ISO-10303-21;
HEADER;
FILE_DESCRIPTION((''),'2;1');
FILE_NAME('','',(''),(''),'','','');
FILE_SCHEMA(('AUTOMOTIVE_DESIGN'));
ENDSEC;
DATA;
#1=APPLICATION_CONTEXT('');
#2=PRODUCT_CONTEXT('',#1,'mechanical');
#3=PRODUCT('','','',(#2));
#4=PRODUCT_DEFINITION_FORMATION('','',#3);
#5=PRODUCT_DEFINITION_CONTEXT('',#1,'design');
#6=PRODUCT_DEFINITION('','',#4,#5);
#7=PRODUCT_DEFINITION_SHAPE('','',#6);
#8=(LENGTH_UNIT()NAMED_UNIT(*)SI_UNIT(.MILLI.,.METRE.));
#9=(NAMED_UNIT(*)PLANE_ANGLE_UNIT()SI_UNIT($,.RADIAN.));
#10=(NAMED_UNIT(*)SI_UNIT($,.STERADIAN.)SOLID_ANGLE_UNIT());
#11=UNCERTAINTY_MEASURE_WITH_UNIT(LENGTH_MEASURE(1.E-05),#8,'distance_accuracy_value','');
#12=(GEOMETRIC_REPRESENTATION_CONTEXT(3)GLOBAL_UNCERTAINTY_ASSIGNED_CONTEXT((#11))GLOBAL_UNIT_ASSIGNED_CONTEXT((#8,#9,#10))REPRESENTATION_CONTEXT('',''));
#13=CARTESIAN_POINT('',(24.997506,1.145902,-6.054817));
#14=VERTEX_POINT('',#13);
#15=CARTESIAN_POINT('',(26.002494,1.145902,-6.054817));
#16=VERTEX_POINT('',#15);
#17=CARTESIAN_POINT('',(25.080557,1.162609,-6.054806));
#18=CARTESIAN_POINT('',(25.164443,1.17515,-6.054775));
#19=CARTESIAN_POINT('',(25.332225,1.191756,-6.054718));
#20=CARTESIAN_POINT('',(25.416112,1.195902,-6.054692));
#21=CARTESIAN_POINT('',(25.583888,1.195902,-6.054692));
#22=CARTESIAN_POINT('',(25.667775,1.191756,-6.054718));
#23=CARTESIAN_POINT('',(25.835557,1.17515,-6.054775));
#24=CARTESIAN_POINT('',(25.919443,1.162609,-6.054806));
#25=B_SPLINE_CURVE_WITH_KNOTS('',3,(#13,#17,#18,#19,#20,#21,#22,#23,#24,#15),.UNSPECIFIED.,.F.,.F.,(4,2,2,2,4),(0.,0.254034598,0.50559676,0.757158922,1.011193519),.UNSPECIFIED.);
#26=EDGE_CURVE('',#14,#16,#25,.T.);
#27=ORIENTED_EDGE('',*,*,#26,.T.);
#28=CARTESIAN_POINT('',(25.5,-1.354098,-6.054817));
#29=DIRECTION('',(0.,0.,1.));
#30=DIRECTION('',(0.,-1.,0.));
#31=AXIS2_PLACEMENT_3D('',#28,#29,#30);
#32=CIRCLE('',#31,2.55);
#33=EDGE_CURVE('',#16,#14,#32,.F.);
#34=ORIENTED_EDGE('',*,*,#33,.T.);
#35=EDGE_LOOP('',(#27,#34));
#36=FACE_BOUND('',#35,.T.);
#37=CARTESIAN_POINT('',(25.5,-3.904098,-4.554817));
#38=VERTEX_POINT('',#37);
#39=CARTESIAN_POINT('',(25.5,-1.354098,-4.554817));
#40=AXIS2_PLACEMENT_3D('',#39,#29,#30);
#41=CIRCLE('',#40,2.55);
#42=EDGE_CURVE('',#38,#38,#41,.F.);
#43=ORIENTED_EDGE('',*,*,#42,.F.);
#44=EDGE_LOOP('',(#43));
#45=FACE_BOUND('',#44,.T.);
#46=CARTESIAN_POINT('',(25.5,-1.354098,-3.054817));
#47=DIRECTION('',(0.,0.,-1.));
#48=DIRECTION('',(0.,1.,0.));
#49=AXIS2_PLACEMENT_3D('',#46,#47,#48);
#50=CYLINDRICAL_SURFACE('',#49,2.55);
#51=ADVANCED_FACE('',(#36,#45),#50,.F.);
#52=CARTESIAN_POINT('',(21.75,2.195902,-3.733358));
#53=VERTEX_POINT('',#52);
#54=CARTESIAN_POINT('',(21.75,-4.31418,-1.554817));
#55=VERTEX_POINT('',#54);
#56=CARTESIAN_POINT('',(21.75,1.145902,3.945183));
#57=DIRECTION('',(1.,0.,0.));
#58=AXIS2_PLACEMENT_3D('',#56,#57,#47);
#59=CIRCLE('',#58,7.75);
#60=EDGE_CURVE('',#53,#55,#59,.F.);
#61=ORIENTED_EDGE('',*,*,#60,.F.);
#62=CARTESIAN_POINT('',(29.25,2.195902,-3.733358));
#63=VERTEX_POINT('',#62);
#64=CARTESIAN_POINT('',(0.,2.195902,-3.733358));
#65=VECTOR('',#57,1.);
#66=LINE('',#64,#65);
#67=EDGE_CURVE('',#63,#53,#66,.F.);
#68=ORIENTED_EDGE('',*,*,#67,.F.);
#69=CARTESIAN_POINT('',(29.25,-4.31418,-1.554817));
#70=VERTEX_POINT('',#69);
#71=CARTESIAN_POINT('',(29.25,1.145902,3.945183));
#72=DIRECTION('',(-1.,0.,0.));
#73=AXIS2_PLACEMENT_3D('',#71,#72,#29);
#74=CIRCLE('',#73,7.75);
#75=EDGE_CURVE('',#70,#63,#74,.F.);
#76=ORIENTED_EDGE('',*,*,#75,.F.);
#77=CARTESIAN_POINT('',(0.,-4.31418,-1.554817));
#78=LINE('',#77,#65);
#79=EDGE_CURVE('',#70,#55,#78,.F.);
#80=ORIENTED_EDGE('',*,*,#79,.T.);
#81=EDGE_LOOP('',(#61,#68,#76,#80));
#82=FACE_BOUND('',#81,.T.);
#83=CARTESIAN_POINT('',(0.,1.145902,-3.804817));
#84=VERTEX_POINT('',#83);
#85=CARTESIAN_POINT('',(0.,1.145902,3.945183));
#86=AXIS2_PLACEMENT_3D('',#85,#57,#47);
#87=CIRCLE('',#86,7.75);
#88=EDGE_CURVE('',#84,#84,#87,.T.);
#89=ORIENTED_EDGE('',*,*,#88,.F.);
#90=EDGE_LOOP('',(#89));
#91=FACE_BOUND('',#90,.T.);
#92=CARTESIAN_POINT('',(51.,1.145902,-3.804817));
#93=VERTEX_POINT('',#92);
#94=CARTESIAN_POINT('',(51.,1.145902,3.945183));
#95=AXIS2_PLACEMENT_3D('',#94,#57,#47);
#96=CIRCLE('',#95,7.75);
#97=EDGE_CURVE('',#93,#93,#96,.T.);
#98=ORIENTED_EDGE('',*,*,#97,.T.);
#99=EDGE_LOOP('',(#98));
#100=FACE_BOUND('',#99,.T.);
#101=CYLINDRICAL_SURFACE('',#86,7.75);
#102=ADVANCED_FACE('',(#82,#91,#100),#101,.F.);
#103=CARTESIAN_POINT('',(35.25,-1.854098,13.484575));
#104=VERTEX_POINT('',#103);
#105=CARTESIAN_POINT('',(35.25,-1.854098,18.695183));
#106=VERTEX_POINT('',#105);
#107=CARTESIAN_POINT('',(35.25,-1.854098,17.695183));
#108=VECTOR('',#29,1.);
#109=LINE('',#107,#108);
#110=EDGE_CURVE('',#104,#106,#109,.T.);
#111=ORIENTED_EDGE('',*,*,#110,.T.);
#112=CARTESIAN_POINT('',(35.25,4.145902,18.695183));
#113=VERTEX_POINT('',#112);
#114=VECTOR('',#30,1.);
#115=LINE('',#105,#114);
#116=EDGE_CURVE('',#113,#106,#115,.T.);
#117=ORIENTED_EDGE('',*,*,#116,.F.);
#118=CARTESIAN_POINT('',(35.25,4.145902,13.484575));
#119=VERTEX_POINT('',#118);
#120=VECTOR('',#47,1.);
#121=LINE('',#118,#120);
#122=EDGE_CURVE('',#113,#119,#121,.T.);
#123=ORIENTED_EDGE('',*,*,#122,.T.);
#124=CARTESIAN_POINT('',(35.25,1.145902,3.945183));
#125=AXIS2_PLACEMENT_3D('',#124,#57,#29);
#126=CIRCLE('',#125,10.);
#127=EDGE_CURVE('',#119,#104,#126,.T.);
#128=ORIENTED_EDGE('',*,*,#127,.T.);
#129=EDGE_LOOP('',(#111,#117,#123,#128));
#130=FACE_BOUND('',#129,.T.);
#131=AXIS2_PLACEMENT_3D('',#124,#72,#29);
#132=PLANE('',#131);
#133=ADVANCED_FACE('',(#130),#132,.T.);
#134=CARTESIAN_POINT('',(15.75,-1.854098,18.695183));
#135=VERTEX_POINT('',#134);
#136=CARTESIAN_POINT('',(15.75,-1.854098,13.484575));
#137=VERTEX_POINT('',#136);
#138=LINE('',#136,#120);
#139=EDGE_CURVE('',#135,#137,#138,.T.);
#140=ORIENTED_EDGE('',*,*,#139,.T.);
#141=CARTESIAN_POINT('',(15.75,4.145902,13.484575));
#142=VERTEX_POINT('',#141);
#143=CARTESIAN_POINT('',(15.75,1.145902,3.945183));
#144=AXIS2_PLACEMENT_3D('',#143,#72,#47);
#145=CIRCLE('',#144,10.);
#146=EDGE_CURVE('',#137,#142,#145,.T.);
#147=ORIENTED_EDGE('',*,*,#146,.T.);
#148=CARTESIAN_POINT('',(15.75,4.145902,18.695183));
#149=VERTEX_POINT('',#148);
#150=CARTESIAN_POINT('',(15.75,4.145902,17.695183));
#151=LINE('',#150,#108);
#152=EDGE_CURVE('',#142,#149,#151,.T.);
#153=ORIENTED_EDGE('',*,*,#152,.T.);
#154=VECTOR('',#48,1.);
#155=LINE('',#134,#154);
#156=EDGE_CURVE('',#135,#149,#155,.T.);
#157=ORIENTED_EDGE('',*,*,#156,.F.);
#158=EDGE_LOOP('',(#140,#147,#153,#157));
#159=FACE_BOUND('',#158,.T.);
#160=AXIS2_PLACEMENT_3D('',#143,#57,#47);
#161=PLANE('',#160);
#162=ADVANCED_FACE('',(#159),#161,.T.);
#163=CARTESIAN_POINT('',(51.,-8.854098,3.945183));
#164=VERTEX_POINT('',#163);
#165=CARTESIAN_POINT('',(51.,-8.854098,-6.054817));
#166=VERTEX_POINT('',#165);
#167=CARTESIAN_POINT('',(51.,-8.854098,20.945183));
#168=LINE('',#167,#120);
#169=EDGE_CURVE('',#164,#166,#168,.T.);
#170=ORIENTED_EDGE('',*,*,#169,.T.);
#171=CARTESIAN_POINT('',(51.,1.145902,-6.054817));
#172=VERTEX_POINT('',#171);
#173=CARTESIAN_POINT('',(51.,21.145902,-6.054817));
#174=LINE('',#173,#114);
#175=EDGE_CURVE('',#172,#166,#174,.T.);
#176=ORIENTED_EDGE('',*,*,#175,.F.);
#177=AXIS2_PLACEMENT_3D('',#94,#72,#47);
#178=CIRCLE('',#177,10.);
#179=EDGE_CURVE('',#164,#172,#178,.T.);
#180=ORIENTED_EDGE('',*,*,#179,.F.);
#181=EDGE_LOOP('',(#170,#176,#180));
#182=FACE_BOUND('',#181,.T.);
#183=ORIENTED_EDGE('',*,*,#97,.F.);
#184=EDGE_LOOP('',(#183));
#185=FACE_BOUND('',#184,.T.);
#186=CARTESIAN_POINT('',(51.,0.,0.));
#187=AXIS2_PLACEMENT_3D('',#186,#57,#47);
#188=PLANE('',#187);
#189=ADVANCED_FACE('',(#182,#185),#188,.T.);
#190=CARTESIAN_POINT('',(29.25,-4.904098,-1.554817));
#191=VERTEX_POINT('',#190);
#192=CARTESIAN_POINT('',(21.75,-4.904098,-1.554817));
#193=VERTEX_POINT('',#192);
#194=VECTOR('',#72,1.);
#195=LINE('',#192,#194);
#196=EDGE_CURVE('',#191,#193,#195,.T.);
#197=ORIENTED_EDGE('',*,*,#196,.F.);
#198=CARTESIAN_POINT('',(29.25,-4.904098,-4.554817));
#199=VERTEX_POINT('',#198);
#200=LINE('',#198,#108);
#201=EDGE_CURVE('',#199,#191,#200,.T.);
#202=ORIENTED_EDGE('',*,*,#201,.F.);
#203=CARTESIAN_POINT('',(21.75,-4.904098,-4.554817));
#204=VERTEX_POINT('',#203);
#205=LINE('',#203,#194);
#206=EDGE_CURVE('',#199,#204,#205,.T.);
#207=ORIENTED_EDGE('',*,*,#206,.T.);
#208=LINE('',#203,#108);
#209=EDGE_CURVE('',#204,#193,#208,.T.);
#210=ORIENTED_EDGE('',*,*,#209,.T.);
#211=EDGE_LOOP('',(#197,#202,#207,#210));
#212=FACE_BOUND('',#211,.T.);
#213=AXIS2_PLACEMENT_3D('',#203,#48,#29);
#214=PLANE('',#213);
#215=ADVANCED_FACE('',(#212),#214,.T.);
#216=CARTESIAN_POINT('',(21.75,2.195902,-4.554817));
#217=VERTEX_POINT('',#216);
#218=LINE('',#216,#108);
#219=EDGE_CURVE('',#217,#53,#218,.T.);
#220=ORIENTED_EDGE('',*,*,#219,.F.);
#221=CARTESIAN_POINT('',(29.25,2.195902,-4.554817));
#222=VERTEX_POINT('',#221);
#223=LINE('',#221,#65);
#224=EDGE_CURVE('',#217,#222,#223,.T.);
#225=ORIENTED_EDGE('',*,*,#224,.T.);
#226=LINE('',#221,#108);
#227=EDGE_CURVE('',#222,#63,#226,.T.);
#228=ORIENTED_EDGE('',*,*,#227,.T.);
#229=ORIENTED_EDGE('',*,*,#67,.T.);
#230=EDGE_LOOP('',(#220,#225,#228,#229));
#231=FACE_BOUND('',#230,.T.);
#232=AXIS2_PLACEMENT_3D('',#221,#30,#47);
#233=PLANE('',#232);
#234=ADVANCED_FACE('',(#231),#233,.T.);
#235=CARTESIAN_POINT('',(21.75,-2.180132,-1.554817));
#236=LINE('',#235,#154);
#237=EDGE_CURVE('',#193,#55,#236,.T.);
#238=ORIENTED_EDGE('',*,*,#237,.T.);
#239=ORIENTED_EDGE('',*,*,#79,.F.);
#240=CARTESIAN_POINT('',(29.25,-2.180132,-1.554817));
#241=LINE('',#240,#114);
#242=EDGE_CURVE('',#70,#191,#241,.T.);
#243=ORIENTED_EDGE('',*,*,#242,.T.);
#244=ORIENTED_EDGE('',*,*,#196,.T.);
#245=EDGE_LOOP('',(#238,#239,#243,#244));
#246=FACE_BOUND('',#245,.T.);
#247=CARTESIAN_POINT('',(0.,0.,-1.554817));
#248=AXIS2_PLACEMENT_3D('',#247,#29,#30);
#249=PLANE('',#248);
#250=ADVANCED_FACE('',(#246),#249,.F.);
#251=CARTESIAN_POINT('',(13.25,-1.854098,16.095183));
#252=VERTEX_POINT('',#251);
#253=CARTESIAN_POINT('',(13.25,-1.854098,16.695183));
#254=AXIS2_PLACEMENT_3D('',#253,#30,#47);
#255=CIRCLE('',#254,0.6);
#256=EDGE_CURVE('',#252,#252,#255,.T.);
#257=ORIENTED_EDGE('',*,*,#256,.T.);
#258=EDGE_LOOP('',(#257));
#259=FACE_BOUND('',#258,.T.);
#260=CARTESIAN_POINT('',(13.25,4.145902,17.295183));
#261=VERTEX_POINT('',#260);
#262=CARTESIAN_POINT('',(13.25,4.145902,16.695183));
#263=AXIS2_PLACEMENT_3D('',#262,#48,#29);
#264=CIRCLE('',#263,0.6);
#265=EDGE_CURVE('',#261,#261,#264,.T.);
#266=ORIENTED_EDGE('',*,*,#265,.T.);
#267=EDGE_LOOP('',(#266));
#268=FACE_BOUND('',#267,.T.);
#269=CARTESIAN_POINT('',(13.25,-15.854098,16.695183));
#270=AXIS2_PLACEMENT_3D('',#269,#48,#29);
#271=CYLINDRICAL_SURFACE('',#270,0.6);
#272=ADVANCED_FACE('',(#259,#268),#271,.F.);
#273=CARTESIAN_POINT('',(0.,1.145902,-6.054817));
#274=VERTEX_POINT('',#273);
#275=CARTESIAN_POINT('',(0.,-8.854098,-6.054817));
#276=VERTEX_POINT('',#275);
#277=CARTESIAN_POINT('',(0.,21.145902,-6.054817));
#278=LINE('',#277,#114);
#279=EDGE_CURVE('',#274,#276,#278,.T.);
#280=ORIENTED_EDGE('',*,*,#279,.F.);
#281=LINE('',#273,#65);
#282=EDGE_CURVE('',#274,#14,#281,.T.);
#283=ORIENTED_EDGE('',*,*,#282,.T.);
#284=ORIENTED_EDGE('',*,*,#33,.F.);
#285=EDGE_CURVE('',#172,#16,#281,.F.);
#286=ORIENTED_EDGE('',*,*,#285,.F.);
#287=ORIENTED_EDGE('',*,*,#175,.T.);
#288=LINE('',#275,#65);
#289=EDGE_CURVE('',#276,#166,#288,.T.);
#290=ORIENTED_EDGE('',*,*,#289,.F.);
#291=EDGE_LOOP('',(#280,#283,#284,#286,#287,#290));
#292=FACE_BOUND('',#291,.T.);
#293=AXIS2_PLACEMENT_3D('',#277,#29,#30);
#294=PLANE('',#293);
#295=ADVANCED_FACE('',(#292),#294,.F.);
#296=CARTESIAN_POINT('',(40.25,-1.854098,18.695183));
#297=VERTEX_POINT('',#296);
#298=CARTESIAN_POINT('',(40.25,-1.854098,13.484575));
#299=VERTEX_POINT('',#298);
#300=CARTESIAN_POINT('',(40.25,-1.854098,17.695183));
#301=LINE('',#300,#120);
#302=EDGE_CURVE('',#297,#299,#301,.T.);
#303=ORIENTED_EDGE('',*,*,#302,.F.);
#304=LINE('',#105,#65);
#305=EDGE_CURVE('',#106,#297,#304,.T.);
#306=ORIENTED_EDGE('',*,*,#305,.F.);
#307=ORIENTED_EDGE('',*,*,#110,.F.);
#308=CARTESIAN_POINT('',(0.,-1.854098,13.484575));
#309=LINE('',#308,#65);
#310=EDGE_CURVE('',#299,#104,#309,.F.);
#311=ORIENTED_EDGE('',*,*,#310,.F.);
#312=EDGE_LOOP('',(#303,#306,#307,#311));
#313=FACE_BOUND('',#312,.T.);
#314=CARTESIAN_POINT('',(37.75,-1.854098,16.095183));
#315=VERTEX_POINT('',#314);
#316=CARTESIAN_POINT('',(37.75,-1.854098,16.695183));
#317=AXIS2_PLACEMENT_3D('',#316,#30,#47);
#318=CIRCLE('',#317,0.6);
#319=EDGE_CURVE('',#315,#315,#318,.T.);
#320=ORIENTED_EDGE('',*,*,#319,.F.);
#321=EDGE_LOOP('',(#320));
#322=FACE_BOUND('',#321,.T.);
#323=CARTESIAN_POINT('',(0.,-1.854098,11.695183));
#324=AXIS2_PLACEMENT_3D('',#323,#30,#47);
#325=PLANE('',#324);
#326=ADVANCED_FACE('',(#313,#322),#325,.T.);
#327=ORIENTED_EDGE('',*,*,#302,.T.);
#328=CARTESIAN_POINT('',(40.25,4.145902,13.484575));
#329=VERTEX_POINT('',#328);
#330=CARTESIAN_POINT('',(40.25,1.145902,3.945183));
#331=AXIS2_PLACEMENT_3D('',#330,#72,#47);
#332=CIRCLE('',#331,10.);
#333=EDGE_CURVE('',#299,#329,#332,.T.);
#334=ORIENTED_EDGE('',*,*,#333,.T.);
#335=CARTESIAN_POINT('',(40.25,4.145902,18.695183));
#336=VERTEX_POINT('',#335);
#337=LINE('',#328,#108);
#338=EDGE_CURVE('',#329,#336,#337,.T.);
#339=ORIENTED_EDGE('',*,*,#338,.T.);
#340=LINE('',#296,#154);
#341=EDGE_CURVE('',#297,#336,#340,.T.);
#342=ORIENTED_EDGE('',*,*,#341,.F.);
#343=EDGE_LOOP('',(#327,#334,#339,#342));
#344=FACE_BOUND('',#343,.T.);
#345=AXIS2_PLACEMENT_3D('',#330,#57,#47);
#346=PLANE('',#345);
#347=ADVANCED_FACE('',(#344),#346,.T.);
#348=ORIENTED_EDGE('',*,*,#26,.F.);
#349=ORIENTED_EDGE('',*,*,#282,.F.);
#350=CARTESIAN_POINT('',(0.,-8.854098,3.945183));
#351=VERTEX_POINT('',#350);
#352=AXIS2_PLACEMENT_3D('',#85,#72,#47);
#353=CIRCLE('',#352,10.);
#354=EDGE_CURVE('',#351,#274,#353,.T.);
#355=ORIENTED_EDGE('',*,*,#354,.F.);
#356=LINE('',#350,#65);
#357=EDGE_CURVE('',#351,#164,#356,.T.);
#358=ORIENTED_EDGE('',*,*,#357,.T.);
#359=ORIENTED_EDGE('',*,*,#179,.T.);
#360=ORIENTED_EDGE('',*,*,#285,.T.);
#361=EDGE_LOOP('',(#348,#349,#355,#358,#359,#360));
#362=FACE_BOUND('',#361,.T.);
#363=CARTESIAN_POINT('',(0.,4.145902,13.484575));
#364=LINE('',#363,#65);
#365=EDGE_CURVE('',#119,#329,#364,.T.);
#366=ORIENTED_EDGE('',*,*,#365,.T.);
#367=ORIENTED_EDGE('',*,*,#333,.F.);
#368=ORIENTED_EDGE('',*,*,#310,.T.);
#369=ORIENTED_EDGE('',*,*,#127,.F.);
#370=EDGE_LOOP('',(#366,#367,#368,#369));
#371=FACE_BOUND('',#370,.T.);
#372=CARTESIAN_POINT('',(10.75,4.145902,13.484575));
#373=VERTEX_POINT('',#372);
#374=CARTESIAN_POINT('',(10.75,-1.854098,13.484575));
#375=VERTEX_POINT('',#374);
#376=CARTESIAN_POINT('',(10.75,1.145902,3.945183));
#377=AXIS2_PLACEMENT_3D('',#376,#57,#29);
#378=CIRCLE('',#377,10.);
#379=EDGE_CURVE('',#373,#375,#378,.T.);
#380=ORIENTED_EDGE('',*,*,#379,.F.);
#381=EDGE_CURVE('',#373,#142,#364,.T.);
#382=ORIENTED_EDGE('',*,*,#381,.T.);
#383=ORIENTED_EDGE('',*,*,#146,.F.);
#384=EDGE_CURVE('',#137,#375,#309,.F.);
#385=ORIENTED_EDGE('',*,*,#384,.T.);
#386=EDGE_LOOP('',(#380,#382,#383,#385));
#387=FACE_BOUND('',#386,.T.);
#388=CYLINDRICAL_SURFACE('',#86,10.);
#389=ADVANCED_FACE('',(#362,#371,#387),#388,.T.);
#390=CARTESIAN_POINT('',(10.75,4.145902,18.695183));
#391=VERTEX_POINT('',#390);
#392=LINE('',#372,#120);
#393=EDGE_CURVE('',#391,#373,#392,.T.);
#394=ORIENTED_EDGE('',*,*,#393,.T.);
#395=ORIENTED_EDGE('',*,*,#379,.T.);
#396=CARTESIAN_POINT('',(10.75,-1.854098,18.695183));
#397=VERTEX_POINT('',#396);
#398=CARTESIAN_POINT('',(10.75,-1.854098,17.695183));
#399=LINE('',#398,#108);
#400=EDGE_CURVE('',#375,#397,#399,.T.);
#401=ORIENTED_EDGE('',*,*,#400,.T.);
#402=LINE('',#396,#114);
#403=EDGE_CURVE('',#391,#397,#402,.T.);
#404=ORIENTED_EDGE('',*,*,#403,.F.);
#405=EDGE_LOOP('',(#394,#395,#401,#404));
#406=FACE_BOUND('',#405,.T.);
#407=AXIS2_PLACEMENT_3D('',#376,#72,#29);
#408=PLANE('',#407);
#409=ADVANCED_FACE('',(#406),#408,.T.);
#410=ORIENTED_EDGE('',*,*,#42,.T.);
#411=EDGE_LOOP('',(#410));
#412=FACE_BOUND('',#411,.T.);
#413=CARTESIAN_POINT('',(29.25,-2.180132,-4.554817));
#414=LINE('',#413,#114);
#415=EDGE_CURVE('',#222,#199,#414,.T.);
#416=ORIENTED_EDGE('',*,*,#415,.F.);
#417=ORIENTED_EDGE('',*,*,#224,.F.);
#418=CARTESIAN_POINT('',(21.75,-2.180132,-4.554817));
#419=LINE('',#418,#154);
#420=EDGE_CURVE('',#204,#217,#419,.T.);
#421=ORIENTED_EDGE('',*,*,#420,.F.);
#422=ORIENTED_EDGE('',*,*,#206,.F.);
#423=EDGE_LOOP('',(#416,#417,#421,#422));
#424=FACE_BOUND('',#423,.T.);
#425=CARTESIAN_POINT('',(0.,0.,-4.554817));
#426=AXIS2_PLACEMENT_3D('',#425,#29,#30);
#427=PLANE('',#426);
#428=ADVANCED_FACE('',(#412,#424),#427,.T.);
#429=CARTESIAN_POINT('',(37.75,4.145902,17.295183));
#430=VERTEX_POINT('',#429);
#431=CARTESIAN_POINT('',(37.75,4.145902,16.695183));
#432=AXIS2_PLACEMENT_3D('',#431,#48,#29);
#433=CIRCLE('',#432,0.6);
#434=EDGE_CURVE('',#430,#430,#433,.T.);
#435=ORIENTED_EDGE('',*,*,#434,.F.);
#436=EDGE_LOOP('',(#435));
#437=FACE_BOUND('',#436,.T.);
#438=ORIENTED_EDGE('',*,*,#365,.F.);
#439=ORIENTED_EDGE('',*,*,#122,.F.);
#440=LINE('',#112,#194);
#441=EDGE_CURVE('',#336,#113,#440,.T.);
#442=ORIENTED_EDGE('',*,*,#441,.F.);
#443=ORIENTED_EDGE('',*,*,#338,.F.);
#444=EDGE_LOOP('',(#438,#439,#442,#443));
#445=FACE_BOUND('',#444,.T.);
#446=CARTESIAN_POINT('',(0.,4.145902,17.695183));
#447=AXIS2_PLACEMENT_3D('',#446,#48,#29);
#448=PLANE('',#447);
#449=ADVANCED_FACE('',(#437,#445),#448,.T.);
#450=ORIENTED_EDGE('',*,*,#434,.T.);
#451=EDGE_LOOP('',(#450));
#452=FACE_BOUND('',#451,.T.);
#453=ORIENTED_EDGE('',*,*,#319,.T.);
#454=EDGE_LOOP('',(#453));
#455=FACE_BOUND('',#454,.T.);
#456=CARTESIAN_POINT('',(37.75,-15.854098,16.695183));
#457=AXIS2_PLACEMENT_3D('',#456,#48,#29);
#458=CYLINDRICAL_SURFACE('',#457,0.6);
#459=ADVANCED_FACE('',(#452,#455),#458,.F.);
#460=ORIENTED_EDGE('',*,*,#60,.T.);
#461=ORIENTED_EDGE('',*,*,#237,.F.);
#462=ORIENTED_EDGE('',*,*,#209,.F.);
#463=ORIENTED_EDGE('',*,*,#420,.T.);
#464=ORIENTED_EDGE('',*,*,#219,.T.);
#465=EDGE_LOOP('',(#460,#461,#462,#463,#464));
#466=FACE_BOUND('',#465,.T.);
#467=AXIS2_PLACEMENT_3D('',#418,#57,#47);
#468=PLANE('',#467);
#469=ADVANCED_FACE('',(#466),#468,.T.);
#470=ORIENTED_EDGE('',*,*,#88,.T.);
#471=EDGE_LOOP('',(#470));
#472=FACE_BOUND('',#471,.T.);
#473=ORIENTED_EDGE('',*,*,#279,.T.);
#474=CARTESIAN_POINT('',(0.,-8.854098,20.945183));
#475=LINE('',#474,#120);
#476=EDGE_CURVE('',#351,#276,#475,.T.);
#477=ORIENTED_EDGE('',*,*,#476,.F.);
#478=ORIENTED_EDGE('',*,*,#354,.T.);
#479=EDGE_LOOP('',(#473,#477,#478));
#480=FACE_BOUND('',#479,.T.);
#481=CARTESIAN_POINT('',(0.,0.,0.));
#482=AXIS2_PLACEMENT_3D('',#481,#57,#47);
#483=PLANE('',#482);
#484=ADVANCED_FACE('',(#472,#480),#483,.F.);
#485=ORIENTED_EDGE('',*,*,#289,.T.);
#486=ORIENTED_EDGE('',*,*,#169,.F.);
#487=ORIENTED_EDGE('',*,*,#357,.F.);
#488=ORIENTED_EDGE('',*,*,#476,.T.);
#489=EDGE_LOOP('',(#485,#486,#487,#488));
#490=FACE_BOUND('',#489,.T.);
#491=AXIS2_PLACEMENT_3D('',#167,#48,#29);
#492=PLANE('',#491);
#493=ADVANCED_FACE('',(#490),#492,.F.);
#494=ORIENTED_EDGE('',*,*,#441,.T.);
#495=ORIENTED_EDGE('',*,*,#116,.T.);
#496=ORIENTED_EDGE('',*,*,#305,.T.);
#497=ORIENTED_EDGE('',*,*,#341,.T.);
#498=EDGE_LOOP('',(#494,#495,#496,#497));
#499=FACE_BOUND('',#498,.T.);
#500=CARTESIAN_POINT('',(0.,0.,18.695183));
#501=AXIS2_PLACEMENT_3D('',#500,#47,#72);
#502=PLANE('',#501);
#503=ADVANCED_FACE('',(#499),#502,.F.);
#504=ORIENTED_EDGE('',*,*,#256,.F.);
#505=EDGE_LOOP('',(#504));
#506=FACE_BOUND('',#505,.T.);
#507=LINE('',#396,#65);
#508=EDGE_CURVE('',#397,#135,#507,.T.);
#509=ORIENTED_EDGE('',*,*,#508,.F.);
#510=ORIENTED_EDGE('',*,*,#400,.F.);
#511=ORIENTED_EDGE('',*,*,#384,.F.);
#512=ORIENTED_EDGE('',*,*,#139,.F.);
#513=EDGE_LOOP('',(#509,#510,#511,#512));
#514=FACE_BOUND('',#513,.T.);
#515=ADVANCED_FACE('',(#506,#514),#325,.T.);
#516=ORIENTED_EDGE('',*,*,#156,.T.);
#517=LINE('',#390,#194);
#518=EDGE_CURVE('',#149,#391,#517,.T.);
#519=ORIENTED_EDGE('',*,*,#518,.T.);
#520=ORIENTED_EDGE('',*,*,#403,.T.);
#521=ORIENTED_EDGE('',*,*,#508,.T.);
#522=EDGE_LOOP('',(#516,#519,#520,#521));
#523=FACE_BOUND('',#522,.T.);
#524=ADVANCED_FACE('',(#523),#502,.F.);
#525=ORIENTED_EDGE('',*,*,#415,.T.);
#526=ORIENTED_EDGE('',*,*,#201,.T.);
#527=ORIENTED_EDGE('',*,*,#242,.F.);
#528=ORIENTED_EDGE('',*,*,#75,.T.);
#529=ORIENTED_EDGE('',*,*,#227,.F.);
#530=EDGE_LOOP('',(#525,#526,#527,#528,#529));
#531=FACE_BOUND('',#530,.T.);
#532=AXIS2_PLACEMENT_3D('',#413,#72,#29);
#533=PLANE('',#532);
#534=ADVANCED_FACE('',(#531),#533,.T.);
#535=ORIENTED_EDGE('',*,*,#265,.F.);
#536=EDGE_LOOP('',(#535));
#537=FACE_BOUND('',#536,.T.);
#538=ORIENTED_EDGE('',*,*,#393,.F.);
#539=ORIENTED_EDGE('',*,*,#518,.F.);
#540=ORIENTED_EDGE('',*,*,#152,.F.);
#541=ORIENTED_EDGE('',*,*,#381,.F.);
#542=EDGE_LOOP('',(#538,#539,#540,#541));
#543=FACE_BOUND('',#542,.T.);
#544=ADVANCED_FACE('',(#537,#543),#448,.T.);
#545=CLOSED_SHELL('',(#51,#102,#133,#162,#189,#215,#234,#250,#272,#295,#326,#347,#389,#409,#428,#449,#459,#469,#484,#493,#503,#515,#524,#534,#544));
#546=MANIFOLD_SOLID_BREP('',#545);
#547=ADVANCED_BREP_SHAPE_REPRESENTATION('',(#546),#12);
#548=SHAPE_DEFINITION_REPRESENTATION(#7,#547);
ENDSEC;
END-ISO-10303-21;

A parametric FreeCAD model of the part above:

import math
import FreeCAD as App
import Part
import Sketcher

V = App.Vector

doc = App.newDocument("Part")
params = doc.addObject("Spreadsheet::Sheet", "Params")
for row, (alias, value) in enumerate([
    ("sketch1_width", "30 mm"),
    ("sketch1_height", "34 mm"),
    ("pad1_length", "51 mm"),
    ("sketch2_diameter", "5.1 mm"),
    ("pocket1_length", "10 mm"),
    ("sketch3_diameter", "15.5 mm"),
    ("pocket2_length", "51 mm"),
    ("sketch4_width", "30 mm"),
    ("sketch4_height", "7 mm"),
    ("pocket3_length", "51 mm"),
    ("sketch5_radius", "10 mm"),
    ("sketch5_width", "20 mm"),
    ("sketch5_height", "17 mm"),
    ("pocket4_length", "51 mm"),
    ("sketch6_width", "7.5 mm"),
    ("sketch6_height", "7.1 mm"),
    ("pocket5_length", "1.5 mm"),
    ("pocket5_length2", "1.5 mm"),
    ("sketch7_width", "6 mm"),
    ("pad2_length", "51 mm"),
    ("sketch8_radius", "10 mm"),
    ("sketch8_width", "6 mm"),
    ("pocket6_length", "13 mm"),
    ("sketch9_radius", "10 mm"),
    ("sketch9_width", "6 mm"),
    ("pocket7_length", "13 mm"),
    ("sketch10_width", "2 mm"),
    ("sketch10_height", "6 mm"),
    ("pocket8_length", "2 mm"),
    ("sketch11_radius", "10 mm"),
    ("sketch11_width", "6 mm"),
    ("pocket9_length", "13 mm"),
    ("pocket9_length2", "11 mm"),
    ("sketch12_radius", "10 mm"),
    ("sketch12_width", "6 mm"),
    ("pad3_length", "2.25 mm"),
    ("sketch13_radius", "10 mm"),
    ("sketch13_width", "6 mm"),
    ("pad4_length", "2.25 mm"),
    ("sketch14_radius", "10 mm"),
    ("sketch14_width", "6 mm"),
    ("pad5_length", "2.25 mm"),
    ("sketch15_radius", "10 mm"),
    ("sketch15_width", "6 mm"),
    ("pad6_length", "2.25 mm"),
    ("sketch16_width", "5 mm"),
    ("sketch16_height", "6 mm"),
    ("pad7_length", "1 mm"),
    ("sketch17_width", "5 mm"),
    ("sketch17_height", "6 mm"),
    ("pad8_length", "1 mm"),
    ("sketch18_diameter", "1.2 mm"),
    ("pocket10_length", "20 mm"),
], start=1):
    params.set(f"A{row}", alias)
    params.set(f"B{row}", "=" + value)
    params.setAlias(f"B{row}", alias)

body = doc.addObject("PartDesign::Body", "Body")

sketch1 = body.newObject("Sketcher::SketchObject", "Sketch")
sketch1.AttachmentSupport = (doc.getObject("YZ_Plane"), [""])
sketch1.MapMode = "FlatFace"
sketch1.addGeometry([
    Part.LineSegment(V(21, 21, 0), V(-9, 21, 0)),
    Part.LineSegment(V(-9, 21, 0), V(-9, -13, 0)),
    Part.LineSegment(V(-9, -13, 0), V(21, -13, 0)),
    Part.LineSegment(V(21, -13, 0), V(21, 21, 0)),
], False)
sketch1.addConstraint([
    Sketcher.Constraint("Coincident", 0, 2, 1, 1),
    Sketcher.Constraint("Coincident", 1, 2, 2, 1),
    Sketcher.Constraint("Coincident", 2, 2, 3, 1),
    Sketcher.Constraint("Coincident", 3, 2, 0, 1),
    Sketcher.Constraint("Horizontal", 0),
    Sketcher.Constraint("Vertical", 1),
    Sketcher.Constraint("Horizontal", 2),
    Sketcher.Constraint("Vertical", 3),
    Sketcher.Constraint("DistanceX", 0, 2, 0, 1, 30.0),
    Sketcher.Constraint("DistanceY", 1, 2, 1, 1, 34.0),
    Sketcher.Constraint("DistanceX", -1, 1, 2, 2, 21.145902),
    Sketcher.Constraint("DistanceY", -1, 1, 0, 2, 20.945183),
])
sketch1.setExpression("Constraints[8]", "Params.sketch1_width")
sketch1.setExpression("Constraints[9]", "Params.sketch1_height")
pad1 = body.newObject("PartDesign::Pad", "Pad")
pad1.Profile = sketch1
pad1.setExpression("Length", "Params.pad1_length")

sketch2 = body.newObject("Sketcher::SketchObject", "Sketch001")
sketch2.AttachmentSupport = (doc.getObject("XY_Plane"), [""])
sketch2.MapMode = "FlatFace"
sketch2.AttachmentOffset = App.Placement(V(0, 0, -13.054817), App.Rotation())
sketch2.addGeometry(Part.Circle(V(25.5, -1.4, 0), V(0, 0, 1), 2.5), False)
sketch2.addConstraint([
    Sketcher.Constraint("Diameter", 0, 5.1),
    Sketcher.Constraint("DistanceX", -1, 1, 0, 3, 25.5),
    Sketcher.Constraint("DistanceY", 0, 3, -1, 1, 1.354098),
])
sketch2.setExpression("Constraints[0]", "Params.sketch2_diameter")
pocket1 = body.newObject("PartDesign::Pocket", "Pocket")
pocket1.Profile = sketch2
pocket1.setExpression("Length", "Params.pocket1_length")
pocket1.Reversed = True

sketch3 = body.newObject("Sketcher::SketchObject", "Sketch002")
sketch3.AttachmentSupport = (doc.getObject("YZ_Plane"), [""])
sketch3.MapMode = "FlatFace"
sketch3.AttachmentOffset = App.Placement(V(0, 0, 51), App.Rotation())
sketch3.addGeometry(Part.Circle(V(1, 4, 0), V(0, 0, 1), 8), False)
sketch3.addConstraint([
    Sketcher.Constraint("Diameter", 0, 15.5),
    Sketcher.Constraint("DistanceX", -1, 1, 0, 3, 1.145902),
    Sketcher.Constraint("DistanceY", -1, 1, 0, 3, 3.945183),
])
sketch3.setExpression("Constraints[0]", "Params.sketch3_diameter")
pocket2 = body.newObject("PartDesign::Pocket", "Pocket001")
pocket2.Profile = sketch3
pocket2.setExpression("Length", "Params.pocket2_length")

sketch4 = body.newObject("Sketcher::SketchObject", "Sketch003")
sketch4.AttachmentSupport = (doc.getObject("YZ_Plane"), [""])
sketch4.MapMode = "FlatFace"
sketch4.AttachmentOffset = App.Placement(V(0, 0, 51), App.Rotation())
sketch4.addGeometry([
    Part.LineSegment(V(21, -6, 0), V(-9, -6, 0)),
    Part.LineSegment(V(-9, -6, 0), V(-9, -13, 0)),
    Part.LineSegment(V(-9, -13, 0), V(21, -13, 0)),
    Part.LineSegment(V(21, -13, 0), V(21, -6, 0)),
], False)
sketch4.addConstraint([
    Sketcher.Constraint("Coincident", 0, 2, 1, 1),
    Sketcher.Constraint("Coincident", 1, 2, 2, 1),
    Sketcher.Constraint("Coincident", 2, 2, 3, 1),
    Sketcher.Constraint("Coincident", 3, 2, 0, 1),
    Sketcher.Constraint("Horizontal", 0),
    Sketcher.Constraint("Vertical", 1),
    Sketcher.Constraint("Horizontal", 2),
    Sketcher.Constraint("Vertical", 3),
    Sketcher.Constraint("DistanceX", 0, 2, 0, 1, 30.0),
    Sketcher.Constraint("DistanceY", 1, 2, 1, 1, 7.0),
    Sketcher.Constraint("DistanceX", -1, 1, 2, 2, 21.145902),
    Sketcher.Constraint("DistanceY", 0, 2, -1, 1, 6.054817),
])
sketch4.setExpression("Constraints[8]", "Params.sketch4_width")
sketch4.setExpression("Constraints[9]", "Params.sketch4_height")
pocket3 = body.newObject("PartDesign::Pocket", "Pocket002")
pocket3.Profile = sketch4
pocket3.setExpression("Length", "Params.pocket3_length")

sketch5 = body.newObject("Sketcher::SketchObject", "Sketch004")
sketch5.AttachmentSupport = (doc.getObject("YZ_Plane"), [""])
sketch5.MapMode = "FlatFace"
sketch5.AttachmentOffset = App.Placement(V(0, 0, 51), App.Rotation())
sketch5.addGeometry([
    Part.LineSegment(V(-9, 21, 0), V(-9, 4, 0)),
    Part.ArcOfCircle(Part.Circle(V(1, 4, 0), V(0, 0, 1), 10), math.radians(-90), math.radians(180)),
    Part.LineSegment(V(1, -6, 0), V(21, -6, 0)),
    Part.LineSegment(V(21, -6, 0), V(21, 21, 0)),
    Part.LineSegment(V(21, 21, 0), V(-9, 21, 0)),
], False)
sketch5.addConstraint([
    Sketcher.Constraint("Tangent", 0, 2, 1, 2),
    Sketcher.Constraint("Tangent", 1, 1, 2, 1),
    Sketcher.Constraint("Coincident", 2, 2, 3, 1),
    Sketcher.Constraint("Coincident", 3, 2, 4, 1),
    Sketcher.Constraint("Coincident", 4, 2, 0, 1),
    Sketcher.Constraint("Vertical", 0),
    Sketcher.Constraint("Horizontal", 2),
    Sketcher.Constraint("Vertical", 3),
    Sketcher.Constraint("Horizontal", 4),
    Sketcher.Constraint("Radius", 1, 10.0),
    Sketcher.Constraint("DistanceX", 2, 1, 2, 2, 20.0),
    Sketcher.Constraint("DistanceY", 0, 2, 0, 1, 17.0),
    Sketcher.Constraint("DistanceX", -1, 1, 1, 1, 1.145902),
    Sketcher.Constraint("DistanceY", -1, 1, 1, 3, 3.945183),
])
sketch5.setExpression("Constraints[9]", "Params.sketch5_radius")
sketch5.setExpression("Constraints[10]", "Params.sketch5_width")
sketch5.setExpression("Constraints[11]", "Params.sketch5_height")
pocket4 = body.newObject("PartDesign::Pocket", "Pocket003")
pocket4.Profile = sketch5
pocket4.setExpression("Length", "Params.pocket4_length")

sketch6 = body.newObject("Sketcher::SketchObject", "Sketch005")
sketch6.AttachmentSupport = (doc.getObject("XY_Plane"), [""])
sketch6.MapMode = "FlatFace"
sketch6.AttachmentOffset = App.Placement(V(0, 0, -3.054817), App.Rotation())
sketch6.addGeometry([
    Part.LineSegment(V(22, -5, 0), V(22, 2, 0)),
    Part.LineSegment(V(22, 2, 0), V(29, 2, 0)),
    Part.LineSegment(V(29, 2, 0), V(29, -5, 0)),
    Part.LineSegment(V(29, -5, 0), V(22, -5, 0)),
], False)
sketch6.addConstraint([
    Sketcher.Constraint("Coincident", 0, 2, 1, 1),
    Sketcher.Constraint("Coincident", 1, 2, 2, 1),
    Sketcher.Constraint("Coincident", 2, 2, 3, 1),
    Sketcher.Constraint("Coincident", 3, 2, 0, 1),
    Sketcher.Constraint("Vertical", 0),
    Sketcher.Constraint("Horizontal", 1),
    Sketcher.Constraint("Vertical", 2),
    Sketcher.Constraint("Horizontal", 3),
    Sketcher.Constraint("DistanceX", 1, 1, 1, 2, 7.5),
    Sketcher.Constraint("DistanceY", 0, 1, 0, 2, 7.1),
    Sketcher.Constraint("DistanceX", -1, 1, 0, 2, 21.75),
    Sketcher.Constraint("DistanceY", -1, 1, 0, 2, 2.195902),
])
sketch6.setExpression("Constraints[8]", "Params.sketch6_width")
sketch6.setExpression("Constraints[9]", "Params.sketch6_height")
pocket5 = body.newObject("PartDesign::Pocket", "Pocket004")
pocket5.Profile = sketch6
pocket5.Type = "TwoLengths"
pocket5.setExpression("Length", "Params.pocket5_length")
pocket5.setExpression("Length2", "Params.pocket5_length2")

sketch7 = body.newObject("Sketcher::SketchObject", "Sketch006")
sketch7.AttachmentSupport = (doc.getObject("YZ_Plane"), [""])
sketch7.MapMode = "FlatFace"
sketch7.AttachmentOffset = App.Placement(V(0, 0, 51), App.Rotation())
sketch7.addGeometry([
    Part.LineSegment(V(4, 18, 0), V(-2, 18, 0)),
    Part.LineSegment(V(-2, 18, 0), V(-2, 12, 0)),
    Part.LineSegment(V(-2, 12, 0), V(4, 12, 0)),
    Part.LineSegment(V(4, 12, 0), V(4, 18, 0)),
], False)
sketch7.addConstraint([
    Sketcher.Constraint("Coincident", 0, 2, 1, 1),
    Sketcher.Constraint("Coincident", 1, 2, 2, 1),
    Sketcher.Constraint("Coincident", 2, 2, 3, 1),
    Sketcher.Constraint("Coincident", 3, 2, 0, 1),
    Sketcher.Constraint("Horizontal", 0),
    Sketcher.Constraint("Vertical", 1),
    Sketcher.Constraint("Horizontal", 2),
    Sketcher.Constraint("Vertical", 3),
    Sketcher.Constraint("Equal", 2, 1),
    Sketcher.Constraint("DistanceX", 0, 2, 0, 1, 6.0),
    Sketcher.Constraint("DistanceX", 0, 2, -1, 1, 1.854098),
    Sketcher.Constraint("DistanceY", -1, 1, 0, 2, 17.695183),
])
sketch7.setExpression("Constraints[9]", "Params.sketch7_width")
pad2 = body.newObject("PartDesign::Pad", "Pad001")
pad2.Profile = sketch7
pad2.setExpression("Length", "Params.pad2_length")
pad2.Reversed = True

sketch8 = body.newObject("Sketcher::SketchObject", "Sketch007")
sketch8.AttachmentSupport = (doc.getObject("YZ_Plane"), [""])
sketch8.MapMode = "FlatFace"
sketch8.AttachmentOffset = App.Placement(V(0, 0, 51), App.Rotation())
sketch8.addGeometry([
    Part.LineSegment(V(-1.9, 17.7, 0), V(-1.9, 13.5, 0)),
    Part.ArcOfCircle(Part.Circle(V(1.1, 3.9, 0), V(0, 0, 1), 10), math.radians(73), math.radians(107)),
    Part.LineSegment(V(4.1, 13.5, 0), V(4.1, 17.7, 0)),
    Part.LineSegment(V(4.1, 17.7, 0), V(-1.9, 17.7, 0)),
], False)
sketch8.addConstraint([
    Sketcher.Constraint("Coincident", 0, 2, 1, 2),
    Sketcher.Constraint("Coincident", 1, 1, 2, 1),
    Sketcher.Constraint("Coincident", 2, 2, 3, 1),
    Sketcher.Constraint("Coincident", 3, 2, 0, 1),
    Sketcher.Constraint("Vertical", 0),
    Sketcher.Constraint("Vertical", 2),
    Sketcher.Constraint("Horizontal", 3),
    Sketcher.Constraint("Horizontal", 0, 2, 1, 1),
    Sketcher.Constraint("Radius", 1, 10.0),
    Sketcher.Constraint("DistanceX", 3, 2, 3, 1, 6.0),
    Sketcher.Constraint("DistanceY", 1, 3, 2, 2, 13.75),
    Sketcher.Constraint("DistanceX", -1, 1, 1, 3, 1.145902),
    Sketcher.Constraint("DistanceY", -1, 1, 1, 3, 3.945183),
])
sketch8.setExpression("Constraints[8]", "Params.sketch8_radius")
sketch8.setExpression("Constraints[9]", "Params.sketch8_width")
pocket6 = body.newObject("PartDesign::Pocket", "Pocket005")
pocket6.Profile = sketch8
pocket6.setExpression("Length", "Params.pocket6_length")

sketch9 = body.newObject("Sketcher::SketchObject", "Sketch008")
sketch9.AttachmentSupport = (doc.getObject("YZ_Plane"), [""])
sketch9.MapMode = "FlatFace"
sketch9.addGeometry([
    Part.LineSegment(V(-1.9, 13.5, 0), V(-1.9, 17.7, 0)),
    Part.LineSegment(V(-1.9, 17.7, 0), V(4.1, 17.7, 0)),
    Part.LineSegment(V(4.1, 17.7, 0), V(4.1, 13.5, 0)),
    Part.ArcOfCircle(Part.Circle(V(1.1, 3.9, 0), V(0, 0, 1), 10), math.radians(73), math.radians(107)),
], False)
sketch9.addConstraint([
    Sketcher.Constraint("Coincident", 0, 2, 1, 1),
    Sketcher.Constraint("Coincident", 1, 2, 2, 1),
    Sketcher.Constraint("Coincident", 2, 2, 3, 1),
    Sketcher.Constraint("Coincident", 3, 2, 0, 1),
    Sketcher.Constraint("Vertical", 0),
    Sketcher.Constraint("Horizontal", 1),
    Sketcher.Constraint("Vertical", 2),
    Sketcher.Constraint("Horizontal", 2, 2, 3, 2),
    Sketcher.Constraint("Radius", 3, 10.0),
    Sketcher.Constraint("DistanceX", 1, 1, 1, 2, 6.0),
    Sketcher.Constraint("DistanceY", 3, 3, 0, 2, 13.75),
    Sketcher.Constraint("DistanceX", 3, 2, -1, 1, 1.854098),
    Sketcher.Constraint("DistanceY", -1, 1, 3, 3, 3.945183),
])
sketch9.setExpression("Constraints[8]", "Params.sketch9_radius")
sketch9.setExpression("Constraints[9]", "Params.sketch9_width")
pocket7 = body.newObject("PartDesign::Pocket", "Pocket006")
pocket7.Profile = sketch9
pocket7.setExpression("Length", "Params.pocket7_length")
pocket7.Reversed = True

sketch10 = body.newObject("Sketcher::SketchObject", "Sketch009")
sketch10.AttachmentSupport = (doc.getObject("XY_Plane"), [""])
sketch10.MapMode = "FlatFace"
sketch10.AttachmentOffset = App.Placement(V(0, 0, 17.695183), App.Rotation())
sketch10.addGeometry([
    Part.LineSegment(V(24.5, 4.1, 0), V(24.5, -1.9, 0)),
    Part.LineSegment(V(24.5, -1.9, 0), V(26.5, -1.9, 0)),
    Part.LineSegment(V(26.5, -1.9, 0), V(26.5, 4.1, 0)),
    Part.LineSegment(V(26.5, 4.1, 0), V(24.5, 4.1, 0)),
], False)
sketch10.addConstraint([
    Sketcher.Constraint("Coincident", 0, 2, 1, 1),
    Sketcher.Constraint("Coincident", 1, 2, 2, 1),
    Sketcher.Constraint("Coincident", 2, 2, 3, 1),
    Sketcher.Constraint("Coincident", 3, 2, 0, 1),
    Sketcher.Constraint("Vertical", 0),
    Sketcher.Constraint("Horizontal", 1),
    Sketcher.Constraint("Vertical", 2),
    Sketcher.Constraint("Horizontal", 3),
    Sketcher.Constraint("DistanceX", 1, 1, 1, 2, 2.0),
    Sketcher.Constraint("DistanceY", 0, 2, 0, 1, 6.0),
    Sketcher.Constraint("DistanceX", -1, 1, 0, 2, 24.5),
    Sketcher.Constraint("DistanceY", 0, 2, -1, 1, 1.854098),
])
sketch10.setExpression("Constraints[8]", "Params.sketch10_width")
sketch10.setExpression("Constraints[9]", "Params.sketch10_height")
pocket8 = body.newObject("PartDesign::Pocket", "Pocket007")
pocket8.Profile = sketch10
pocket8.setExpression("Length", "Params.pocket8_length")

sketch11 = body.newObject("Sketcher::SketchObject", "Sketch010")
sketch11.AttachmentSupport = (doc.getObject("YZ_Plane"), [""])
sketch11.MapMode = "FlatFace"
sketch11.AttachmentOffset = App.Placement(V(0, 0, 24.5), App.Rotation())
sketch11.addGeometry([
    Part.LineSegment(V(4.1, 17.7, 0), V(-1.9, 17.7, 0)),
    Part.LineSegment(V(-1.9, 17.7, 0), V(-1.9, 13.5, 0)),
    Part.ArcOfCircle(Part.Circle(V(1.1, 3.9, 0), V(0, 0, 1), 10), math.radians(73), math.radians(107)),
    Part.LineSegment(V(4.1, 13.5, 0), V(4.1, 17.7, 0)),
], False)
sketch11.addConstraint([
    Sketcher.Constraint("Coincident", 0, 2, 1, 1),
    Sketcher.Constraint("Coincident", 1, 2, 2, 2),
    Sketcher.Constraint("Coincident", 2, 1, 3, 1),
    Sketcher.Constraint("Coincident", 3, 2, 0, 1),
    Sketcher.Constraint("Horizontal", 0),
    Sketcher.Constraint("Vertical", 1),
    Sketcher.Constraint("Vertical", 3),
    Sketcher.Constraint("Horizontal", 1, 2, 2, 1),
    Sketcher.Constraint("Radius", 2, 10.0),
    Sketcher.Constraint("DistanceX", 0, 2, 0, 1, 6.0),
    Sketcher.Constraint("DistanceY", 2, 3, 0, 2, 13.75),
    Sketcher.Constraint("DistanceX", -1, 1, 2, 3, 1.145902),
    Sketcher.Constraint("DistanceY", -1, 1, 2, 3, 3.945183),
])
sketch11.setExpression("Constraints[8]", "Params.sketch11_radius")
sketch11.setExpression("Constraints[9]", "Params.sketch11_width")
pocket9 = body.newObject("PartDesign::Pocket", "Pocket008")
pocket9.Profile = sketch11
pocket9.Type = "TwoLengths"
pocket9.setExpression("Length", "Params.pocket9_length")
pocket9.setExpression("Length2", "Params.pocket9_length2")
pocket9.Reversed = True

sketch12 = body.newObject("Sketcher::SketchObject", "Sketch011")
sketch12.AttachmentSupport = (doc.getObject("YZ_Plane"), [""])
sketch12.MapMode = "FlatFace"
sketch12.AttachmentOffset = App.Placement(V(0, 0, 38), App.Rotation())
sketch12.addGeometry([
    Part.LineSegment(V(4.1, 13.5, 0), V(4.1, 17.7, 0)),
    Part.LineSegment(V(4.1, 17.7, 0), V(-1.9, 17.7, 0)),
    Part.LineSegment(V(-1.9, 17.7, 0), V(-1.9, 13.5, 0)),
    Part.ArcOfCircle(Part.Circle(V(1.1, 3.9, 0), V(0, 0, 1), 10), math.radians(73), math.radians(107)),
], False)
sketch12.addConstraint([
    Sketcher.Constraint("Coincident", 0, 2, 1, 1),
    Sketcher.Constraint("Coincident", 1, 2, 2, 1),
    Sketcher.Constraint("Coincident", 2, 2, 3, 2),
    Sketcher.Constraint("Coincident", 3, 1, 0, 1),
    Sketcher.Constraint("Vertical", 0),
    Sketcher.Constraint("Horizontal", 1),
    Sketcher.Constraint("Vertical", 2),
    Sketcher.Constraint("Horizontal", 2, 2, 3, 1),
    Sketcher.Constraint("Radius", 3, 10.0),
    Sketcher.Constraint("DistanceX", 1, 2, 1, 1, 6.0),
    Sketcher.Constraint("DistanceY", 3, 3, 0, 2, 13.75),
    Sketcher.Constraint("DistanceX", -1, 1, 3, 3, 1.145902),
    Sketcher.Constraint("DistanceY", -1, 1, 3, 3, 3.945183),
])
sketch12.setExpression("Constraints[8]", "Params.sketch12_radius")
sketch12.setExpression("Constraints[9]", "Params.sketch12_width")
pad3 = body.newObject("PartDesign::Pad", "Pad002")
pad3.Profile = sketch12
pad3.setExpression("Length", "Params.pad3_length")

sketch13 = body.newObject("Sketcher::SketchObject", "Sketch012")
sketch13.AttachmentSupport = (doc.getObject("YZ_Plane"), [""])
sketch13.MapMode = "FlatFace"
sketch13.AttachmentOffset = App.Placement(V(0, 0, 13), App.Rotation())
sketch13.addGeometry([
    Part.LineSegment(V(4.1, 17.7, 0), V(4.1, 13.5, 0)),
    Part.ArcOfCircle(Part.Circle(V(1.1, 3.9, 0), V(0, 0, 1), 10), math.radians(73), math.radians(107)),
    Part.LineSegment(V(-1.9, 13.5, 0), V(-1.9, 17.7, 0)),
    Part.LineSegment(V(-1.9, 17.7, 0), V(4.1, 17.7, 0)),
], False)
sketch13.addConstraint([
    Sketcher.Constraint("Coincident", 0, 2, 1, 1),
    Sketcher.Constraint("Coincident", 1, 2, 2, 1),
    Sketcher.Constraint("Coincident", 2, 2, 3, 1),
    Sketcher.Constraint("Coincident", 3, 2, 0, 1),
    Sketcher.Constraint("Vertical", 0),
    Sketcher.Constraint("Vertical", 2),
    Sketcher.Constraint("Horizontal", 3),
    Sketcher.Constraint("Horizontal", 0, 2, 1, 2),
    Sketcher.Constraint("Radius", 1, 10.0),
    Sketcher.Constraint("DistanceX", 3, 1, 3, 2, 6.0),
    Sketcher.Constraint("DistanceY", 1, 3, 2, 2, 13.75),
    Sketcher.Constraint("DistanceX", 1, 2, -1, 1, 1.854098),
    Sketcher.Constraint("DistanceY", -1, 1, 1, 3, 3.945183),
])
sketch13.setExpression("Constraints[8]", "Params.sketch13_radius")
sketch13.setExpression("Constraints[9]", "Params.sketch13_width")
pad4 = body.newObject("PartDesign::Pad", "Pad003")
pad4.Profile = sketch13
pad4.setExpression("Length", "Params.pad4_length")
pad4.Reversed = True

sketch14 = body.newObject("Sketcher::SketchObject", "Sketch013")
sketch14.AttachmentSupport = (doc.getObject("YZ_Plane"), [""])
sketch14.MapMode = "FlatFace"
sketch14.AttachmentOffset = App.Placement(V(0, 0, 13.5), App.Rotation())
sketch14.addGeometry([
    Part.LineSegment(V(4.1, 17.7, 0), V(-1.9, 17.7, 0)),
    Part.LineSegment(V(-1.9, 17.7, 0), V(-1.9, 13.5, 0)),
    Part.ArcOfCircle(Part.Circle(V(1.1, 3.9, 0), V(0, 0, 1), 10), math.radians(73), math.radians(107)),
    Part.LineSegment(V(4.1, 13.5, 0), V(4.1, 17.7, 0)),
], False)
sketch14.addConstraint([
    Sketcher.Constraint("Coincident", 0, 2, 1, 1),
    Sketcher.Constraint("Coincident", 1, 2, 2, 2),
    Sketcher.Constraint("Coincident", 2, 1, 3, 1),
    Sketcher.Constraint("Coincident", 3, 2, 0, 1),
    Sketcher.Constraint("Horizontal", 0),
    Sketcher.Constraint("Vertical", 1),
    Sketcher.Constraint("Vertical", 3),
    Sketcher.Constraint("Horizontal", 1, 2, 2, 1),
    Sketcher.Constraint("Radius", 2, 10.0),
    Sketcher.Constraint("DistanceX", 0, 2, 0, 1, 6.0),
    Sketcher.Constraint("DistanceY", 2, 3, 0, 2, 13.75),
    Sketcher.Constraint("DistanceX", -1, 1, 2, 3, 1.145902),
    Sketcher.Constraint("DistanceY", -1, 1, 2, 3, 3.945183),
])
sketch14.setExpression("Constraints[8]", "Params.sketch14_radius")
sketch14.setExpression("Constraints[9]", "Params.sketch14_width")
pad5 = body.newObject("PartDesign::Pad", "Pad004")
pad5.Profile = sketch14
pad5.setExpression("Length", "Params.pad5_length")

sketch15 = body.newObject("Sketcher::SketchObject", "Sketch014")
sketch15.AttachmentSupport = (doc.getObject("YZ_Plane"), [""])
sketch15.MapMode = "FlatFace"
sketch15.AttachmentOffset = App.Placement(V(0, 0, 37.5), App.Rotation())
sketch15.addGeometry([
    Part.LineSegment(V(4.1, 17.7, 0), V(4.1, 13.5, 0)),
    Part.ArcOfCircle(Part.Circle(V(1.1, 3.9, 0), V(0, 0, 1), 10), math.radians(73), math.radians(107)),
    Part.LineSegment(V(-1.9, 13.5, 0), V(-1.9, 17.7, 0)),
    Part.LineSegment(V(-1.9, 17.7, 0), V(4.1, 17.7, 0)),
], False)
sketch15.addConstraint([
    Sketcher.Constraint("Coincident", 0, 2, 1, 1),
    Sketcher.Constraint("Coincident", 1, 2, 2, 1),
    Sketcher.Constraint("Coincident", 2, 2, 3, 1),
    Sketcher.Constraint("Coincident", 3, 2, 0, 1),
    Sketcher.Constraint("Vertical", 0),
    Sketcher.Constraint("Vertical", 2),
    Sketcher.Constraint("Horizontal", 3),
    Sketcher.Constraint("Horizontal", 0, 2, 1, 2),
    Sketcher.Constraint("Radius", 1, 10.0),
    Sketcher.Constraint("DistanceX", 3, 1, 3, 2, 6.0),
    Sketcher.Constraint("DistanceY", 1, 3, 2, 2, 13.75),
    Sketcher.Constraint("DistanceX", 1, 2, -1, 1, 1.854098),
    Sketcher.Constraint("DistanceY", -1, 1, 1, 3, 3.945183),
])
sketch15.setExpression("Constraints[8]", "Params.sketch15_radius")
sketch15.setExpression("Constraints[9]", "Params.sketch15_width")
pad6 = body.newObject("PartDesign::Pad", "Pad005")
pad6.Profile = sketch15
pad6.setExpression("Length", "Params.pad6_length")
pad6.Reversed = True

sketch16 = body.newObject("Sketcher::SketchObject", "Sketch015")
sketch16.AttachmentSupport = (doc.getObject("XY_Plane"), [""])
sketch16.MapMode = "FlatFace"
sketch16.AttachmentOffset = App.Placement(V(0, 0, 17.695183), App.Rotation())
sketch16.addGeometry([
    Part.LineSegment(V(35, 4, 0), V(35, -2, 0)),
    Part.LineSegment(V(35, -2, 0), V(40, -2, 0)),
    Part.LineSegment(V(40, -2, 0), V(40, 4, 0)),
    Part.LineSegment(V(40, 4, 0), V(35, 4, 0)),
], False)
sketch16.addConstraint([
    Sketcher.Constraint("Coincident", 0, 2, 1, 1),
    Sketcher.Constraint("Coincident", 1, 2, 2, 1),
    Sketcher.Constraint("Coincident", 2, 2, 3, 1),
    Sketcher.Constraint("Coincident", 3, 2, 0, 1),
    Sketcher.Constraint("Vertical", 0),
    Sketcher.Constraint("Horizontal", 1),
    Sketcher.Constraint("Vertical", 2),
    Sketcher.Constraint("Horizontal", 3),
    Sketcher.Constraint("DistanceX", 1, 1, 1, 2, 5.0),
    Sketcher.Constraint("DistanceY", 0, 2, 0, 1, 6.0),
    Sketcher.Constraint("DistanceX", -1, 1, 0, 2, 35.25),
    Sketcher.Constraint("DistanceY", 0, 2, -1, 1, 1.854098),
])
sketch16.setExpression("Constraints[8]", "Params.sketch16_width")
sketch16.setExpression("Constraints[9]", "Params.sketch16_height")
pad7 = body.newObject("PartDesign::Pad", "Pad006")
pad7.Profile = sketch16
pad7.setExpression("Length", "Params.pad7_length")

sketch17 = body.newObject("Sketcher::SketchObject", "Sketch016")
sketch17.AttachmentSupport = (doc.getObject("XY_Plane"), [""])
sketch17.MapMode = "FlatFace"
sketch17.AttachmentOffset = App.Placement(V(0, 0, 17.695183), App.Rotation())
sketch17.addGeometry([
    Part.LineSegment(V(11, 4, 0), V(11, -2, 0)),
    Part.LineSegment(V(11, -2, 0), V(16, -2, 0)),
    Part.LineSegment(V(16, -2, 0), V(16, 4, 0)),
    Part.LineSegment(V(16, 4, 0), V(11, 4, 0)),
], False)
sketch17.addConstraint([
    Sketcher.Constraint("Coincident", 0, 2, 1, 1),
    Sketcher.Constraint("Coincident", 1, 2, 2, 1),
    Sketcher.Constraint("Coincident", 2, 2, 3, 1),
    Sketcher.Constraint("Coincident", 3, 2, 0, 1),
    Sketcher.Constraint("Vertical", 0),
    Sketcher.Constraint("Horizontal", 1),
    Sketcher.Constraint("Vertical", 2),
    Sketcher.Constraint("Horizontal", 3),
    Sketcher.Constraint("DistanceX", 1, 1, 1, 2, 5.0),
    Sketcher.Constraint("DistanceY", 0, 2, 0, 1, 6.0),
    Sketcher.Constraint("DistanceX", -1, 1, 0, 2, 10.75),
    Sketcher.Constraint("DistanceY", 0, 2, -1, 1, 1.854098),
])
sketch17.setExpression("Constraints[8]", "Params.sketch17_width")
sketch17.setExpression("Constraints[9]", "Params.sketch17_height")
pad8 = body.newObject("PartDesign::Pad", "Pad007")
pad8.Profile = sketch17
pad8.setExpression("Length", "Params.pad8_length")

sketch18 = body.newObject("Sketcher::SketchObject", "Sketch017")
sketch18.AttachmentSupport = (doc.getObject("XZ_Plane"), [""])
sketch18.MapMode = "FlatFace"
sketch18.AttachmentOffset = App.Placement(V(0, 0, -4.145902), App.Rotation())
sketch18.addGeometry([
    Part.Circle(V(13.2, 16.7, 0), V(0, 0, 1), 0.6),
    Part.Circle(V(37.8, 16.7, 0), V(0, 0, 1), 0.6),
], False)
sketch18.addConstraint([
    Sketcher.Constraint("Equal", 0, 1),
    Sketcher.Constraint("Horizontal", 0, 3, 1, 3),
    Sketcher.Constraint("Diameter", 0, 1.2),
    Sketcher.Constraint("DistanceX", 0, 3, 1, 3, 24.5),
    Sketcher.Constraint("DistanceX", -1, 1, 0, 3, 13.25),
    Sketcher.Constraint("DistanceY", -1, 1, 0, 3, 16.695183),
])
sketch18.setExpression("Constraints[2]", "Params.sketch18_diameter")
pocket10 = body.newObject("PartDesign::Pocket", "Pocket009")
pocket10.Profile = sketch18
pocket10.setExpression("Length", "Params.pocket10_length")
pocket10.Reversed = True

doc.recompute()
